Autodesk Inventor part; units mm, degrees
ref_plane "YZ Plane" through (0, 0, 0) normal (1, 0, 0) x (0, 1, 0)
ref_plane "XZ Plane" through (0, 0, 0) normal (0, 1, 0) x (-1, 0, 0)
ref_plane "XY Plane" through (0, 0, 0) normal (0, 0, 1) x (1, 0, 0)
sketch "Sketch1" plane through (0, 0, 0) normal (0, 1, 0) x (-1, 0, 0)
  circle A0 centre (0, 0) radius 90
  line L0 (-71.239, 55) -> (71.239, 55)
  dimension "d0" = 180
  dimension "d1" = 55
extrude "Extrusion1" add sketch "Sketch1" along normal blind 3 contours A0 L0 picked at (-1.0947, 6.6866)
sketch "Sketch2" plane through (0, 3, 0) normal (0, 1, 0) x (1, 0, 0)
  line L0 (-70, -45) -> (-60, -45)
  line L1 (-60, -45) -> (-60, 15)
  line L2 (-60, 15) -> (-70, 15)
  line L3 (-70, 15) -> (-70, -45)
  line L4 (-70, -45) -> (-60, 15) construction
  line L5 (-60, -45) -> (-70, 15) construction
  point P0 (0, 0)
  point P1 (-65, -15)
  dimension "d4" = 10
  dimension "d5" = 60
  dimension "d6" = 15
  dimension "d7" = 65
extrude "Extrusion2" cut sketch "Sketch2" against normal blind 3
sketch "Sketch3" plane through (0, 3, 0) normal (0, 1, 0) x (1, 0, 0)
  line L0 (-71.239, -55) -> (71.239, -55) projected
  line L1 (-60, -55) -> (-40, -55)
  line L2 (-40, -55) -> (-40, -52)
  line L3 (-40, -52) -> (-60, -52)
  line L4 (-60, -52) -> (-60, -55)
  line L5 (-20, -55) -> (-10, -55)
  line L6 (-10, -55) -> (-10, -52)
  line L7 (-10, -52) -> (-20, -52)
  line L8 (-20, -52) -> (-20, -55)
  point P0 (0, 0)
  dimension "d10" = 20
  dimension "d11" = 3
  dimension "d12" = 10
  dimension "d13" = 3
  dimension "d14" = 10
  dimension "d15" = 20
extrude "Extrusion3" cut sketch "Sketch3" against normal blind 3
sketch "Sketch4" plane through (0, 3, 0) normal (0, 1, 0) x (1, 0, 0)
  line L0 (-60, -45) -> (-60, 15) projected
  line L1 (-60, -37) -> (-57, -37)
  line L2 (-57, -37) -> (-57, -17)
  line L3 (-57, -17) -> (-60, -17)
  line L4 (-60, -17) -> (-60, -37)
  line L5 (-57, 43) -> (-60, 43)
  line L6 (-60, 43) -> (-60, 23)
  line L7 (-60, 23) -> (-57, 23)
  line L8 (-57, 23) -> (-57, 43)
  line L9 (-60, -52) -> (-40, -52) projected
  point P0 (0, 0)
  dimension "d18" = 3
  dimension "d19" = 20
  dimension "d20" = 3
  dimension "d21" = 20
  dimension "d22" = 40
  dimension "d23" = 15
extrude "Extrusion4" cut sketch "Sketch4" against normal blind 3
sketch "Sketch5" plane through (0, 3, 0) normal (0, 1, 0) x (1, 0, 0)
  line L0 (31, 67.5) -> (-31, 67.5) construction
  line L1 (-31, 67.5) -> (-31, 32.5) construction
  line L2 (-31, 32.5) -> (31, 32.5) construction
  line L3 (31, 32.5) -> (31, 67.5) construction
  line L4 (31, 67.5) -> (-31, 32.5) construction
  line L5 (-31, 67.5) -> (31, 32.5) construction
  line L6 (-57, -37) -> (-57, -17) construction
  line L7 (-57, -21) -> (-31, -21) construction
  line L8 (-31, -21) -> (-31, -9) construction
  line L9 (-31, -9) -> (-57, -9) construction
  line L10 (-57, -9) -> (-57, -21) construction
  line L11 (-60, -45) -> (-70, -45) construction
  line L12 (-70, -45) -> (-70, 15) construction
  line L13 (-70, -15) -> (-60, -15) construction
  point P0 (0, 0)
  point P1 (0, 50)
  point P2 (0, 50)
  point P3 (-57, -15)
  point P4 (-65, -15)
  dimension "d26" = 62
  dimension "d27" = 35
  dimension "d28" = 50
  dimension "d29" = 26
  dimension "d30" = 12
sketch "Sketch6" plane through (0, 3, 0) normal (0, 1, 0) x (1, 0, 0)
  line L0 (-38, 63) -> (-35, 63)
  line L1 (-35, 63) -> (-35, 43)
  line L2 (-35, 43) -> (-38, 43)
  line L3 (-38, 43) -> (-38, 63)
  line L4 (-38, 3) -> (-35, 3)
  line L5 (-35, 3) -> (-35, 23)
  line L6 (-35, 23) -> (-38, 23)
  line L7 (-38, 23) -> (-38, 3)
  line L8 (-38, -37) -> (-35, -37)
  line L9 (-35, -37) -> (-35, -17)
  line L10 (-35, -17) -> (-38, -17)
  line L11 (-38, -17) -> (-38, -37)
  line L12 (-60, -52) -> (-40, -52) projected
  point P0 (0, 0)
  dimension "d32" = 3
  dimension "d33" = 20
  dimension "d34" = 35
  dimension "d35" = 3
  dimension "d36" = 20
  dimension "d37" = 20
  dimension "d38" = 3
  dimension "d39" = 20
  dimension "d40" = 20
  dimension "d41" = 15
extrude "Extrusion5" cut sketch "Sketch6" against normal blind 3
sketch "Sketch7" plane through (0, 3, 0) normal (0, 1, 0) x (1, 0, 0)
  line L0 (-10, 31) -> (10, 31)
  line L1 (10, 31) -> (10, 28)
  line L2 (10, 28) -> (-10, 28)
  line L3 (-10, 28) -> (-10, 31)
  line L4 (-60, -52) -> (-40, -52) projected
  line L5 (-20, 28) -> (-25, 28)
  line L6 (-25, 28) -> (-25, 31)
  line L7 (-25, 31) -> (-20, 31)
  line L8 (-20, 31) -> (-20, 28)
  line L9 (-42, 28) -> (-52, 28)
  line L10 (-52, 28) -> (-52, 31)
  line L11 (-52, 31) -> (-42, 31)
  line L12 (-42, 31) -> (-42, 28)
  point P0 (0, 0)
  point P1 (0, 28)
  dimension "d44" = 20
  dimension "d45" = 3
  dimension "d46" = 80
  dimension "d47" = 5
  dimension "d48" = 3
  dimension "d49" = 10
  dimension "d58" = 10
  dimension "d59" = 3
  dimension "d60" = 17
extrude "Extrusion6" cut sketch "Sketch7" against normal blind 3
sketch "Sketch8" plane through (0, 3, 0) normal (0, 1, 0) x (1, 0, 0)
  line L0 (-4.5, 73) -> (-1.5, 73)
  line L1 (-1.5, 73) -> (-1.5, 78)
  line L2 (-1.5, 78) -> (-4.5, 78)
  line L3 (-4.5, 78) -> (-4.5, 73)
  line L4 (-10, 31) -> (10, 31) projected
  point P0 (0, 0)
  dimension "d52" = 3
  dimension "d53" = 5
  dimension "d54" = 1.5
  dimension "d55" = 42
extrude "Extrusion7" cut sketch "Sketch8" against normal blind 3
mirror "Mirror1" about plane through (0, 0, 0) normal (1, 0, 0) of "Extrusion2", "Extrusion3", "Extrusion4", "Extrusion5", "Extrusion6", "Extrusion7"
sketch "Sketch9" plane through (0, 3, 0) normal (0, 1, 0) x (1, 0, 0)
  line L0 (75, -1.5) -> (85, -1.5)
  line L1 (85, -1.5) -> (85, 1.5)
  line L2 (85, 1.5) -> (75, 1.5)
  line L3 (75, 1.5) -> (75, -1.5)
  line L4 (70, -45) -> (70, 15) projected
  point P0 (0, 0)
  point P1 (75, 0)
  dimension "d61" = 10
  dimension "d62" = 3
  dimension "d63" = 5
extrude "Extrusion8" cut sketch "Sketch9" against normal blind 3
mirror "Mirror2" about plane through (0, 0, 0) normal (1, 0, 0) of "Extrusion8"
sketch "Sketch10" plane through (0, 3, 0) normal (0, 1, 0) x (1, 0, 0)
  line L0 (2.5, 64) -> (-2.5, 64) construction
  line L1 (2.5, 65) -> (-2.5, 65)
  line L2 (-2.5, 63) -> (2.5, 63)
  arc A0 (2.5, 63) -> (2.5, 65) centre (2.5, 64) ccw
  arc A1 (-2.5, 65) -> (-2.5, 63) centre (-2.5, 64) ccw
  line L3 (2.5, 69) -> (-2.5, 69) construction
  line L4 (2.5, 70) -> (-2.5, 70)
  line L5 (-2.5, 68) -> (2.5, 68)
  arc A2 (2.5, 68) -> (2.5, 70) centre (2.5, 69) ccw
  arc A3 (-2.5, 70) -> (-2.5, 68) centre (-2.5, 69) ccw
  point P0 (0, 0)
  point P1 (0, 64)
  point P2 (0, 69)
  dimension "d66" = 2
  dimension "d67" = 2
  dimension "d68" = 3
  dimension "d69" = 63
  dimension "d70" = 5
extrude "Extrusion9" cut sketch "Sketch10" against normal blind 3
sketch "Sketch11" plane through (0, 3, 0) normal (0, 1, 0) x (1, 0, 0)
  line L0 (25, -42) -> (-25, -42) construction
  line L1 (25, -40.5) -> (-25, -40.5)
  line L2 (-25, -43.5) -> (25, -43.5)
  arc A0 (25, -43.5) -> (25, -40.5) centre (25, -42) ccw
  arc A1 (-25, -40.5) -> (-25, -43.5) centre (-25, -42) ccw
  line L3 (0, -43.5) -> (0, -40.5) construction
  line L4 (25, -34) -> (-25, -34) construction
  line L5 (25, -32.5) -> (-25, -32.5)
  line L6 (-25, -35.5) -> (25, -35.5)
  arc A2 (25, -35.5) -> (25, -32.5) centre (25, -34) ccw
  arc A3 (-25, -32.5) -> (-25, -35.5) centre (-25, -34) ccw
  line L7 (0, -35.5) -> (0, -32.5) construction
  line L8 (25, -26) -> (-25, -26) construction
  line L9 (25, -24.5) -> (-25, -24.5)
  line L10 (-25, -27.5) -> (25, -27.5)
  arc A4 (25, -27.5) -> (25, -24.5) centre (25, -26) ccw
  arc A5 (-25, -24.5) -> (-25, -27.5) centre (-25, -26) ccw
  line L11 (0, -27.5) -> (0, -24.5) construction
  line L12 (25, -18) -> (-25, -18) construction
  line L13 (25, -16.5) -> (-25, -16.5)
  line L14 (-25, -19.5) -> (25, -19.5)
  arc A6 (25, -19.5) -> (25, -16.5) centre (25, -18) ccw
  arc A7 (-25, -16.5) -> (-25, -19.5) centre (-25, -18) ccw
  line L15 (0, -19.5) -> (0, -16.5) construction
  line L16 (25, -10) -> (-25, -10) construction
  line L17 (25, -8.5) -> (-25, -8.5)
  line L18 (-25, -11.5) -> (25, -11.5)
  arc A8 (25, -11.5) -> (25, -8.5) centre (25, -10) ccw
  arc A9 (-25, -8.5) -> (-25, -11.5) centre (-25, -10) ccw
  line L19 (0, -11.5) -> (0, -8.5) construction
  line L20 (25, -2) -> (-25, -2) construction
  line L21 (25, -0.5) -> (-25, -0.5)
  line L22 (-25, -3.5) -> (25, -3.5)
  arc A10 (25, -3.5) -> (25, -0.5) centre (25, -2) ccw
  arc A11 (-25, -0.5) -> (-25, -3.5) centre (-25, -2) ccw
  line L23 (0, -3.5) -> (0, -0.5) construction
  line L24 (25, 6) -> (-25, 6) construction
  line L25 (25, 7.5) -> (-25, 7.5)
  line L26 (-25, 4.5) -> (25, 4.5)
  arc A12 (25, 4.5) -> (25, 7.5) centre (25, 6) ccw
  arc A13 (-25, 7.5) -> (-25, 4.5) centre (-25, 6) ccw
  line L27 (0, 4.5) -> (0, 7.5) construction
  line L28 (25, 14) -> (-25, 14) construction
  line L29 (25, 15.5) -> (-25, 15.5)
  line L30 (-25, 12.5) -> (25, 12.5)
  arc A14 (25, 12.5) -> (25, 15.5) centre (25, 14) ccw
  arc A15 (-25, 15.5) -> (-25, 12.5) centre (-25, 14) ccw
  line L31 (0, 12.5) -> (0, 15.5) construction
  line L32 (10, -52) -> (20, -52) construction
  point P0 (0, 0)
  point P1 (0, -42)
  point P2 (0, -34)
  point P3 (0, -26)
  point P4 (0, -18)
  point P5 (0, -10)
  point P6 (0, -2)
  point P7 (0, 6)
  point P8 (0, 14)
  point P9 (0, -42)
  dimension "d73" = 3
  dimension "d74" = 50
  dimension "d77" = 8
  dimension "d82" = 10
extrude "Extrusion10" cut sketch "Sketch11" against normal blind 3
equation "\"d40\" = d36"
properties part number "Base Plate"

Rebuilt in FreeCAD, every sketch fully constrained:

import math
import FreeCAD as App
import Part
import Sketcher
from FreeCAD import Vector


def add_polygon(sketch, points):
    """Adds a closed chain of lines whose ends are joined by coincident constraints."""
    first, n = sketch.GeometryCount, len(points)
    for a, b in zip(points, points[1:] + points[:1]):
        sketch.addGeometry(Part.LineSegment(App.Vector(*a, 0), App.Vector(*b, 0)), False)
    for i in range(n):
        sketch.addConstraint(Sketcher.Constraint("Coincident", first + i, 2, first + (i + 1) % n, 1))

doc = App.newDocument("Part")
body = doc.addObject("PartDesign::Body", "Body")

# Sketch on XZ plane
sketch1 = body.newObject("Sketcher::SketchObject", "Sketch")
sketch1.AttachmentSupport = (doc.getObject("XZ_Plane"), [""])
sketch1.MapMode = "FlatFace"
sketch1.addGeometry([
    Part.ArcOfCircle(Part.Circle(Vector(0, 0, 0), Vector(0, 0, 1), 90), math.radians(142.3301), math.radians(397.6699)),
    Part.LineSegment(Vector(71.239, 55, 0), Vector(-71.239, 55, 0)),
], False)
sketch1.addConstraint([
    Sketcher.Constraint("Coincident", 0, 1, 1, 2),
    Sketcher.Constraint("Coincident", 1, 1, 0, 2),
    Sketcher.Constraint("Horizontal", 1),
    Sketcher.Constraint("Coincident", 0, 3, -1, 1),
    Sketcher.Constraint("Radius", 0, 90.0),
    Sketcher.Constraint("DistanceY", -1, 1, 0, 1, 55.0),
])
pad1 = body.newObject("PartDesign::Pad", "Pad")
pad1.Profile = sketch1
pad1.Length = 3
pad1.Reversed = True

# Sketch on XZ plane
sketch2 = body.newObject("Sketcher::SketchObject", "Sketch001")
sketch2.AttachmentSupport = (doc.getObject("XZ_Plane"), [""])
sketch2.MapMode = "FlatFace"
sketch2.AttachmentOffset = App.Placement(Vector(0, 0, -3), App.Rotation())
add_polygon(sketch2, [(-70, -15), (-70, 45), (-60, 45), (-60, -15)])  # lines 0-3
sketch2.addConstraint([
    Sketcher.Constraint("Vertical", 0),
    Sketcher.Constraint("Horizontal", 1),
    Sketcher.Constraint("Vertical", 2),
    Sketcher.Constraint("Horizontal", 3),
    Sketcher.Constraint("DistanceX", 1, 1, 1, 2, 10.0),
    Sketcher.Constraint("DistanceY", 0, 1, 0, 2, 60.0),
    Sketcher.Constraint("DistanceX", 1, 2, -1, 1, 60.0),
    Sketcher.Constraint("DistanceY", 2, 2, -1, 1, 15.0),
])
pocket1 = body.newObject("PartDesign::Pocket", "Pocket")
pocket1.Profile = sketch2
pocket1.Length = 3
pocket1.Reversed = True

# Sketch on XZ plane
sketch3 = body.newObject("Sketcher::SketchObject", "Sketch002")
sketch3.AttachmentSupport = (doc.getObject("XZ_Plane"), [""])
sketch3.MapMode = "FlatFace"
sketch3.AttachmentOffset = App.Placement(Vector(0, 0, -3), App.Rotation())
add_polygon(sketch3, [(-60, 52), (-60, 55), (-40, 55), (-40, 52)])  # lines 0-3
add_polygon(sketch3, [(-20, 52), (-20, 55), (-10, 55), (-10, 52)])  # lines 4-7
sketch3.addConstraint([
    Sketcher.Constraint("Vertical", 0),
    Sketcher.Constraint("Horizontal", 1),
    Sketcher.Constraint("Vertical", 2),
    Sketcher.Constraint("Horizontal", 3),
    Sketcher.Constraint("Vertical", 4),
    Sketcher.Constraint("Horizontal", 5),
    Sketcher.Constraint("Vertical", 6),
    Sketcher.Constraint("Horizontal", 7),
    Sketcher.Constraint("Horizontal", 1, 2, 4, 2),
    Sketcher.Constraint("Horizontal", 3, 2, 6, 2),
    Sketcher.Constraint("DistanceX", 1, 1, 1, 2, 20.0),
    Sketcher.Constraint("DistanceX", 5, 1, 5, 2, 10.0),
    Sketcher.Constraint("DistanceY", 0, 1, 0, 2, 3.0),
    Sketcher.Constraint("DistanceX", 4, 2, -1, 1, 20.0),
    Sketcher.Constraint("DistanceX", 1, 2, 4, 2, 20.0),
    Sketcher.Constraint("DistanceY", -1, 1, 0, 2, 55.0),
])
pocket2 = body.newObject("PartDesign::Pocket", "Pocket001")
pocket2.Profile = sketch3
pocket2.Length = 3
pocket2.Reversed = True

# Sketch on XZ plane
sketch4 = body.newObject("Sketcher::SketchObject", "Sketch003")
sketch4.AttachmentSupport = (doc.getObject("XZ_Plane"), [""])
sketch4.MapMode = "FlatFace"
sketch4.AttachmentOffset = App.Placement(Vector(0, 0, -3), App.Rotation())
add_polygon(sketch4, [(-60, 17), (-60, 37), (-57, 37), (-57, 17)])  # lines 0-3
add_polygon(sketch4, [(-57, -23), (-57, -43), (-60, -43), (-60, -23)])  # lines 4-7
sketch4.addConstraint([
    Sketcher.Constraint("Vertical", 0),
    Sketcher.Constraint("Horizontal", 1),
    Sketcher.Constraint("Vertical", 2),
    Sketcher.Constraint("Horizontal", 3),
    Sketcher.Constraint("Vertical", 4),
    Sketcher.Constraint("Horizontal", 5),
    Sketcher.Constraint("Vertical", 6),
    Sketcher.Constraint("Horizontal", 7),
    Sketcher.Constraint("Vertical", 2, 2, 4, 2),
    Sketcher.Constraint("Vertical", 3, 2, 5, 2),
    Sketcher.Constraint("Equal", 2, 4),
    Sketcher.Constraint("DistanceX", 1, 1, 1, 2, 3.0),
    Sketcher.Constraint("DistanceY", 0, 1, 0, 2, 20.0),
    Sketcher.Constraint("DistanceY", 6, 2, 3, 2, 40.0),
    Sketcher.Constraint("DistanceX", 0, 2, -1, 1, 60.0),
    Sketcher.Constraint("DistanceY", -1, 1, 0, 2, 37.0),
])
pocket3 = body.newObject("PartDesign::Pocket", "Pocket002")
pocket3.Profile = sketch4
pocket3.Length = 3
pocket3.Reversed = True

# Sketch on XZ plane
sketch5 = body.newObject("Sketcher::SketchObject", "Sketch004")
sketch5.AttachmentSupport = (doc.getObject("XZ_Plane"), [""])
sketch5.MapMode = "FlatFace"
sketch5.AttachmentOffset = App.Placement(Vector(0, 0, -3), App.Rotation())
add_polygon(sketch5, [(-35, -63), (-38, -63), (-38, -43), (-35, -43)])  # lines 0-3
add_polygon(sketch5, [(-38, -23), (-38, -3), (-35, -3), (-35, -23)])  # lines 4-7
add_polygon(sketch5, [(-38, 17), (-38, 37), (-35, 37), (-35, 17)])  # lines 8-11
sketch5.addConstraint([
    Sketcher.Constraint("Horizontal", 0),
    Sketcher.Constraint("Vertical", 1),
    Sketcher.Constraint("Horizontal", 2),
    Sketcher.Constraint("Vertical", 3),
    Sketcher.Constraint("Vertical", 4),
    Sketcher.Constraint("Horizontal", 5),
    Sketcher.Constraint("Vertical", 6),
    Sketcher.Constraint("Horizontal", 7),
    Sketcher.Constraint("Vertical", 8),
    Sketcher.Constraint("Horizontal", 9),
    Sketcher.Constraint("Vertical", 10),
    Sketcher.Constraint("Horizontal", 11),
    Sketcher.Constraint("Vertical", 1, 2, 4, 2),
    Sketcher.Constraint("Vertical", 3, 2, 5, 2),
    Sketcher.Constraint("Vertical", 7, 2, 8, 2),
    Sketcher.Constraint("Vertical", 6, 2, 9, 2),
    Sketcher.Constraint("Equal", 3, 4),
    Sketcher.Constraint("Equal", 6, 8),
    Sketcher.Constraint("DistanceX", 0, 2, 0, 1, 3.0),
    Sketcher.Constraint("DistanceY", 1, 1, 1, 2, 20.0),
    Sketcher.Constraint("DistanceX", 2, 2, -1, 1, 35.0),
    Sketcher.Constraint("DistanceY", 4, 2, -1, 1, 3.0),
    Sketcher.Constraint("DistanceY", 2, 2, 6, 2, 20.0),
    Sketcher.Constraint("DistanceY", 5, 2, 10, 2, 20.0),
])
pocket4 = body.newObject("PartDesign::Pocket", "Pocket003")
pocket4.Profile = sketch5
pocket4.Length = 3
pocket4.Reversed = True

# Sketch on XZ plane
sketch6 = body.newObject("Sketcher::SketchObject", "Sketch005")
sketch6.AttachmentSupport = (doc.getObject("XZ_Plane"), [""])
sketch6.MapMode = "FlatFace"
sketch6.AttachmentOffset = App.Placement(Vector(0, 0, -3), App.Rotation())
add_polygon(sketch6, [(10, -31), (-10, -31), (-10, -28), (10, -28)])  # lines 0-3
add_polygon(sketch6, [(-25, -28), (-20, -28), (-20, -31), (-25, -31)])  # lines 4-7
add_polygon(sketch6, [(-52, -28), (-42, -28), (-42, -31), (-52, -31)])  # lines 8-11
sketch6.addConstraint([
    Sketcher.Constraint("Horizontal", 0),
    Sketcher.Constraint("Vertical", 1),
    Sketcher.Constraint("Horizontal", 2),
    Sketcher.Constraint("Vertical", 3),
    Sketcher.Constraint("Horizontal", 4),
    Sketcher.Constraint("Vertical", 5),
    Sketcher.Constraint("Horizontal", 6),
    Sketcher.Constraint("Vertical", 7),
    Sketcher.Constraint("Horizontal", 8),
    Sketcher.Constraint("Vertical", 9),
    Sketcher.Constraint("Horizontal", 10),
    Sketcher.Constraint("Vertical", 11),
    Sketcher.Constraint("Horizontal", 2, 2, 4, 2),
    Sketcher.Constraint("Horizontal", 3, 2, 5, 2),
    Sketcher.Constraint("Horizontal", 7, 2, 8, 2),
    Sketcher.Constraint("Horizontal", 6, 2, 9, 2),
    Sketcher.Constraint("DistanceX", 0, 2, 0, 1, 20.0),
    Sketcher.Constraint("DistanceX", 4, 1, 4, 2, 5.0),
    Sketcher.Constraint("DistanceX", 8, 1, 8, 2, 10.0),
    Sketcher.Constraint("DistanceY", 1, 1, 1, 2, 3.0),
    Sketcher.Constraint("DistanceX", 0, 2, -1, 1, 10.0),
    Sketcher.Constraint("DistanceX", 4, 2, -1, 1, 20.0),
    Sketcher.Constraint("DistanceX", 8, 2, 7, 2, 17.0),
    Sketcher.Constraint("DistanceY", 0, 2, -1, 1, 31.0),
])
pocket5 = body.newObject("PartDesign::Pocket", "Pocket004")
pocket5.Profile = sketch6
pocket5.Length = 3
pocket5.Reversed = True

# Sketch on XZ plane
sketch7 = body.newObject("Sketcher::SketchObject", "Sketch006")
sketch7.AttachmentSupport = (doc.getObject("XZ_Plane"), [""])
sketch7.MapMode = "FlatFace"
sketch7.AttachmentOffset = App.Placement(Vector(0, 0, -3), App.Rotation())
add_polygon(sketch7, [(-4.5, -78), (-4.5, -73), (-1.5, -73), (-1.5, -78)])  # lines 0-3
sketch7.addConstraint([
    Sketcher.Constraint("Vertical", 0),
    Sketcher.Constraint("Horizontal", 1),
    Sketcher.Constraint("Vertical", 2),
    Sketcher.Constraint("Horizontal", 3),
    Sketcher.Constraint("DistanceX", 1, 1, 1, 2, 3.0),
    Sketcher.Constraint("DistanceY", 0, 1, 0, 2, 5.0),
    Sketcher.Constraint("DistanceX", 1, 2, -1, 1, 1.5),
    Sketcher.Constraint("DistanceY", 0, 2, -1, 1, 73.0),
])
pocket6 = body.newObject("PartDesign::Pocket", "Pocket005")
pocket6.Profile = sketch7
pocket6.Length = 3
pocket6.Reversed = True
doc.recompute()

mirrored = body.newObject("PartDesign::Mirrored", "Mirrored")
mirrored.Originals = [pocket1, pocket2, pocket3, pocket4, pocket5, pocket6]
mirrored.MirrorPlane = (doc.getObject("YZ_Plane"), [""])
body.Tip = mirrored

# Sketch on XZ plane
sketch8 = body.newObject("Sketcher::SketchObject", "Sketch007")
sketch8.AttachmentSupport = (doc.getObject("XZ_Plane"), [""])
sketch8.MapMode = "FlatFace"
sketch8.AttachmentOffset = App.Placement(Vector(0, 0, -3), App.Rotation())
add_polygon(sketch8, [(75, -1.5), (75, 1.5), (85, 1.5), (85, -1.5)])  # lines 0-3
sketch8.addConstraint([
    Sketcher.Constraint("Vertical", 0),
    Sketcher.Constraint("Horizontal", 1),
    Sketcher.Constraint("Vertical", 2),
    Sketcher.Constraint("Horizontal", 3),
    Sketcher.Constraint("DistanceX", 1, 1, 1, 2, 10.0),
    Sketcher.Constraint("DistanceY", 0, 1, 0, 2, 3.0),
    Sketcher.Constraint("DistanceX", -1, 1, 0, 2, 75.0),
    Sketcher.Constraint("DistanceY", -1, 1, 0, 2, 1.5),
])
pocket7 = body.newObject("PartDesign::Pocket", "Pocket006")
pocket7.Profile = sketch8
pocket7.Length = 3
pocket7.Reversed = True
doc.recompute()

mirrored2 = body.newObject("PartDesign::Mirrored", "Mirrored001")
mirrored2.Originals = [pocket7]
mirrored2.MirrorPlane = (doc.getObject("YZ_Plane"), [""])
body.Tip = mirrored2

# Sketch on XZ plane
sketch9 = body.newObject("Sketcher::SketchObject", "Sketch008")
sketch9.AttachmentSupport = (doc.getObject("XZ_Plane"), [""])
sketch9.MapMode = "FlatFace"
sketch9.AttachmentOffset = App.Placement(Vector(0, 0, -3), App.Rotation())
sketch9.addGeometry([
    Part.ArcOfCircle(Part.Circle(Vector(2.5, -64, 0), Vector(0, 0, 1), 1), math.radians(-90), math.radians(90)),  # 0
    Part.LineSegment(Vector(2.5, -65, 0), Vector(-2.5, -65, 0)),  # 1
    Part.ArcOfCircle(Part.Circle(Vector(-2.5, -64, 0), Vector(0, 0, 1), 1), math.radians(90), math.radians(270)),  # 2
    Part.LineSegment(Vector(-2.5, -63, 0), Vector(2.5, -63, 0)),  # 3
    Part.ArcOfCircle(Part.Circle(Vector(2.5, -69, 0), Vector(0, 0, 1), 1), math.radians(-90), math.radians(90)),  # 4
    Part.LineSegment(Vector(2.5, -70, 0), Vector(-2.5, -70, 0)),  # 5
    Part.ArcOfCircle(Part.Circle(Vector(-2.5, -69, 0), Vector(0, 0, 1), 1), math.radians(90), math.radians(270)),  # 6
    Part.LineSegment(Vector(-2.5, -68, 0), Vector(2.5, -68, 0)),  # 7
], False)
sketch9.addConstraint([
    Sketcher.Constraint("Tangent", 0, 1, 1, 1),
    Sketcher.Constraint("Tangent", 1, 2, 2, 2),
    Sketcher.Constraint("Tangent", 2, 1, 3, 1),
    Sketcher.Constraint("Tangent", 3, 2, 0, 2),
    Sketcher.Constraint("Tangent", 4, 1, 5, 1),
    Sketcher.Constraint("Tangent", 5, 2, 6, 2),
    Sketcher.Constraint("Tangent", 6, 1, 7, 1),
    Sketcher.Constraint("Tangent", 7, 2, 4, 2),
    Sketcher.Constraint("Horizontal", 1),
    Sketcher.Constraint("Horizontal", 3),
    Sketcher.Constraint("Horizontal", 5),
    Sketcher.Constraint("Horizontal", 7),
    Sketcher.Constraint("Equal", 2, 4),
    Sketcher.Constraint("Vertical", 0, 3, 4, 3),
    Sketcher.Constraint("Vertical", 2, 3, 6, 3),
    Sketcher.Constraint("Radius", 0, 1.0),
    Sketcher.Constraint("DistanceX", 1, 2, 1, 1, 5.0),
    Sketcher.Constraint("DistanceY", 2, 1, -1, 1, 63.0),
    Sketcher.Constraint("DistanceY", 4, 3, 0, 3, 5.0),
    Sketcher.Constraint("DistanceX", -1, 1, 0, 3, 2.5),
])
pocket8 = body.newObject("PartDesign::Pocket", "Pocket007")
pocket8.Profile = sketch9
pocket8.Length = 3
pocket8.Reversed = True

# Sketch on XZ plane
sketch10 = body.newObject("Sketcher::SketchObject", "Sketch009")
sketch10.AttachmentSupport = (doc.getObject("XZ_Plane"), [""])
sketch10.MapMode = "FlatFace"
sketch10.AttachmentOffset = App.Placement(Vector(0, 0, -3), App.Rotation())
sketch10.addGeometry([
    Part.ArcOfCircle(Part.Circle(Vector(25, 42, 0), Vector(0, 0, 1), 1.5), math.radians(-90), math.radians(90)),  # 0
    Part.LineSegment(Vector(25, 40.5, 0), Vector(-25, 40.5, 0)),  # 1
    Part.ArcOfCircle(Part.Circle(Vector(-25, 42, 0), Vector(0, 0, 1), 1.5), math.radians(90), math.radians(270)),  # 2
    Part.LineSegment(Vector(-25, 43.5, 0), Vector(25, 43.5, 0)),  # 3
    Part.ArcOfCircle(Part.Circle(Vector(25, 34, 0), Vector(0, 0, 1), 1.5), math.radians(-90), math.radians(90)),  # 4
    Part.LineSegment(Vector(25, 32.5, 0), Vector(-25, 32.5, 0)),  # 5
    Part.ArcOfCircle(Part.Circle(Vector(-25, 34, 0), Vector(0, 0, 1), 1.5), math.radians(90), math.radians(270)),  # 6
    Part.LineSegment(Vector(-25, 35.5, 0), Vector(25, 35.5, 0)),  # 7
    Part.ArcOfCircle(Part.Circle(Vector(25, 26, 0), Vector(0, 0, 1), 1.5), math.radians(-90), math.radians(90)),  # 8
    Part.LineSegment(Vector(25, 24.5, 0), Vector(-25, 24.5, 0)),  # 9
    Part.ArcOfCircle(Part.Circle(Vector(-25, 26, 0), Vector(0, 0, 1), 1.5), math.radians(90), math.radians(270)),  # 10
    Part.LineSegment(Vector(-25, 27.5, 0), Vector(25, 27.5, 0)),  # 11
    Part.ArcOfCircle(Part.Circle(Vector(25, 18, 0), Vector(0, 0, 1), 1.5), math.radians(-90), math.radians(90)),  # 12
    Part.LineSegment(Vector(25, 16.5, 0), Vector(-25, 16.5, 0)),  # 13
    Part.ArcOfCircle(Part.Circle(Vector(-25, 18, 0), Vector(0, 0, 1), 1.5), math.radians(90), math.radians(270)),  # 14
    Part.LineSegment(Vector(-25, 19.5, 0), Vector(25, 19.5, 0)),  # 15
    Part.ArcOfCircle(Part.Circle(Vector(25, 10, 0), Vector(0, 0, 1), 1.5), math.radians(-90), math.radians(90)),  # 16
    Part.LineSegment(Vector(25, 8.5, 0), Vector(-25, 8.5, 0)),  # 17
    Part.ArcOfCircle(Part.Circle(Vector(-25, 10, 0), Vector(0, 0, 1), 1.5), math.radians(90), math.radians(270)),  # 18
    Part.LineSegment(Vector(-25, 11.5, 0), Vector(25, 11.5, 0)),  # 19
    Part.ArcOfCircle(Part.Circle(Vector(25, 2, 0), Vector(0, 0, 1), 1.5), math.radians(-90), math.radians(90)),  # 20
    Part.LineSegment(Vector(25, 0.5, 0), Vector(-25, 0.5, 0)),  # 21
    Part.ArcOfCircle(Part.Circle(Vector(-25, 2, 0), Vector(0, 0, 1), 1.5), math.radians(90), math.radians(270)),  # 22
    Part.LineSegment(Vector(-25, 3.5, 0), Vector(25, 3.5, 0)),  # 23
    Part.ArcOfCircle(Part.Circle(Vector(25, -6, 0), Vector(0, 0, 1), 1.5), math.radians(-90), math.radians(90)),  # 24
    Part.LineSegment(Vector(25, -7.5, 0), Vector(-25, -7.5, 0)),  # 25
    Part.ArcOfCircle(Part.Circle(Vector(-25, -6, 0), Vector(0, 0, 1), 1.5), math.radians(90), math.radians(270)),  # 26
    Part.LineSegment(Vector(-25, -4.5, 0), Vector(25, -4.5, 0)),  # 27
    Part.ArcOfCircle(Part.Circle(Vector(25, -14, 0), Vector(0, 0, 1), 1.5), math.radians(-90), math.radians(90)),  # 28
    Part.LineSegment(Vector(25, -15.5, 0), Vector(-25, -15.5, 0)),  # 29
    Part.ArcOfCircle(Part.Circle(Vector(-25, -14, 0), Vector(0, 0, 1), 1.5), math.radians(90), math.radians(270)),  # 30
    Part.LineSegment(Vector(-25, -12.5, 0), Vector(25, -12.5, 0)),  # 31
], False)
sketch10.addConstraint([
    Sketcher.Constraint("Tangent", 0, 1, 1, 1),
    Sketcher.Constraint("Tangent", 1, 2, 2, 2),
    Sketcher.Constraint("Tangent", 2, 1, 3, 1),
    Sketcher.Constraint("Tangent", 3, 2, 0, 2),
    Sketcher.Constraint("Tangent", 4, 1, 5, 1),
    Sketcher.Constraint("Tangent", 5, 2, 6, 2),
    Sketcher.Constraint("Tangent", 6, 1, 7, 1),
    Sketcher.Constraint("Tangent", 7, 2, 4, 2),
    Sketcher.Constraint("Tangent", 8, 1, 9, 1),
    Sketcher.Constraint("Tangent", 9, 2, 10, 2),
    Sketcher.Constraint("Tangent", 10, 1, 11, 1),
    Sketcher.Constraint("Tangent", 11, 2, 8, 2),
    Sketcher.Constraint("Tangent", 12, 1, 13, 1),
    Sketcher.Constraint("Tangent", 13, 2, 14, 2),
    Sketcher.Constraint("Tangent", 14, 1, 15, 1),
    Sketcher.Constraint("Tangent", 15, 2, 12, 2),
    Sketcher.Constraint("Tangent", 16, 1, 17, 1),
    Sketcher.Constraint("Tangent", 17, 2, 18, 2),
    Sketcher.Constraint("Tangent", 18, 1, 19, 1),
    Sketcher.Constraint("Tangent", 19, 2, 16, 2),
    Sketcher.Constraint("Tangent", 20, 1, 21, 1),
    Sketcher.Constraint("Tangent", 21, 2, 22, 2),
    Sketcher.Constraint("Tangent", 22, 1, 23, 1),
    Sketcher.Constraint("Tangent", 23, 2, 20, 2),
    Sketcher.Constraint("Tangent", 24, 1, 25, 1),
    Sketcher.Constraint("Tangent", 25, 2, 26, 2),
    Sketcher.Constraint("Tangent", 26, 1, 27, 1),
    Sketcher.Constraint("Tangent", 27, 2, 24, 2),
    Sketcher.Constraint("Tangent", 28, 1, 29, 1),
    Sketcher.Constraint("Tangent", 29, 2, 30, 2),
    Sketcher.Constraint("Tangent", 30, 1, 31, 1),
    Sketcher.Constraint("Tangent", 31, 2, 28, 2),
    Sketcher.Constraint("Horizontal", 1),
    Sketcher.Constraint("Horizontal", 3),
    Sketcher.Constraint("Horizontal", 5),
    Sketcher.Constraint("Horizontal", 7),
    Sketcher.Constraint("Horizontal", 9),
    Sketcher.Constraint("Horizontal", 11),
    Sketcher.Constraint("Horizontal", 13),
    Sketcher.Constraint("Horizontal", 15),
    Sketcher.Constraint("Horizontal", 17),
    Sketcher.Constraint("Horizontal", 19),
    Sketcher.Constraint("Horizontal", 21),
    Sketcher.Constraint("Horizontal", 23),
    Sketcher.Constraint("Horizontal", 25),
    Sketcher.Constraint("Horizontal", 27),
    Sketcher.Constraint("Horizontal", 29),
    Sketcher.Constraint("Horizontal", 31),
    Sketcher.Constraint("Equal", 2, 4),
    Sketcher.Constraint("Equal", 6, 8),
    Sketcher.Constraint("Equal", 10, 12),
    Sketcher.Constraint("Equal", 14, 16),
    Sketcher.Constraint("Equal", 18, 20),
    Sketcher.Constraint("Equal", 22, 24),
    Sketcher.Constraint("Equal", 26, 28),
    Sketcher.Constraint("Vertical", 0, 3, 4, 3),
    Sketcher.Constraint("Vertical", 2, 3, 6, 3),
    Sketcher.Constraint("Vertical", 4, 3, 8, 3),
    Sketcher.Constraint("Vertical", 6, 3, 10, 3),
    Sketcher.Constraint("Vertical", 8, 3, 12, 3),
    Sketcher.Constraint("Vertical", 10, 3, 14, 3),
    Sketcher.Constraint("Vertical", 12, 3, 16, 3),
    Sketcher.Constraint("Vertical", 14, 3, 18, 3),
    Sketcher.Constraint("Vertical", 16, 3, 20, 3),
    Sketcher.Constraint("Vertical", 18, 3, 22, 3),
    Sketcher.Constraint("Vertical", 20, 3, 24, 3),
    Sketcher.Constraint("Vertical", 22, 3, 26, 3),
    Sketcher.Constraint("Vertical", 24, 3, 28, 3),
    Sketcher.Constraint("Vertical", 26, 3, 30, 3),
    Sketcher.Constraint("Radius", 0, 1.5),
    Sketcher.Constraint("DistanceX", 1, 2, 1, 1, 50.0),
    Sketcher.Constraint("DistanceY", -1, 1, 16, 3, 10.0),
    Sketcher.Constraint("DistanceY", 4, 3, 0, 3, 8.0),
    Sketcher.Constraint("DistanceY", 8, 3, 4, 3, 8.0),
    Sketcher.Constraint("DistanceY", 12, 3, 8, 3, 8.0),
    Sketcher.Constraint("DistanceY", 16, 3, 12, 3, 8.0),
    Sketcher.Constraint("DistanceY", 20, 3, 16, 3, 8.0),
    Sketcher.Constraint("DistanceY", 24, 3, 20, 3, 8.0),
    Sketcher.Constraint("DistanceY", 28, 3, 24, 3, 8.0),
    Sketcher.Constraint("DistanceX", -1, 1, 0, 3, 25.0),
])
pocket9 = body.newObject("PartDesign::Pocket", "Pocket008")
pocket9.Profile = sketch10
pocket9.Length = 3
pocket9.Reversed = True

doc.recompute()
